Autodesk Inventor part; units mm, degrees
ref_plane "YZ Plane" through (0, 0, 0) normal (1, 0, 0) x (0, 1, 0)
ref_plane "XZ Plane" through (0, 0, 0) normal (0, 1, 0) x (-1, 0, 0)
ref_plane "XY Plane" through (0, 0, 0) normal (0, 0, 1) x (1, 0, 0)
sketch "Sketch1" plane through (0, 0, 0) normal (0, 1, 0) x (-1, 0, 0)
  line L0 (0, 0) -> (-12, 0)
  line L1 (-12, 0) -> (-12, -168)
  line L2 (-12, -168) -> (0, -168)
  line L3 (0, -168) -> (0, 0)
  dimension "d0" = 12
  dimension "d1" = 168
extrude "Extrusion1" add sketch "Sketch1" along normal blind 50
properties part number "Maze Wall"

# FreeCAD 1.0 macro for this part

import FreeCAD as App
import Part
import Sketcher
from FreeCAD import Vector


def add_polygon(sketch, points):
    """Adds a closed chain of lines whose ends are joined by coincident constraints."""
    first, n = sketch.GeometryCount, len(points)
    for a, b in zip(points, points[1:] + points[:1]):
        sketch.addGeometry(Part.LineSegment(App.Vector(*a, 0), App.Vector(*b, 0)), False)
    for i in range(n):
        sketch.addConstraint(Sketcher.Constraint("Coincident", first + i, 2, first + (i + 1) % n, 1))

doc = App.newDocument("Part")
params = doc.addObject("Spreadsheet::Sheet", "Params")
for row, (alias, value) in enumerate([
    ("sketch1_width", "12 mm"),
    ("sketch1_height", "168 mm"),
    ("pad1_length", "50 mm"),
], start=1):
    params.set(f"A{row}", alias)
    params.set(f"B{row}", "=" + value)
    params.setAlias(f"B{row}", alias)

body = doc.addObject("PartDesign::Body", "Body")

# Sketch on XZ plane
sketch1 = body.newObject("Sketcher::SketchObject", "Sketch")
sketch1.AttachmentSupport = (doc.getObject("XZ_Plane"), [""])
sketch1.MapMode = "FlatFace"
add_polygon(sketch1, [(0, -168), (0, 0), (12, 0), (12, -168)])  # lines 0-3
sketch1.addConstraint([
    Sketcher.Constraint("Vertical", 0),
    Sketcher.Constraint("Horizontal", 1),
    Sketcher.Constraint("Vertical", 2),
    Sketcher.Constraint("Horizontal", 3),
    Sketcher.Constraint("Coincident", 0, 2, -1, 1),
    Sketcher.Constraint("DistanceX", 1, 1, 1, 2, 12.0),
    Sketcher.Constraint("DistanceY", 0, 1, 0, 2, 168.0),
])
sketch1.setExpression("Constraints[9]", "Params.sketch1_width")
sketch1.setExpression("Constraints[10]", "Params.sketch1_height")
pad1 = body.newObject("PartDesign::Pad", "Pad")
pad1.Profile = sketch1
pad1.setExpression("Length", "Params.pad1_length")
pad1.Reversed = True

doc.recompute()
